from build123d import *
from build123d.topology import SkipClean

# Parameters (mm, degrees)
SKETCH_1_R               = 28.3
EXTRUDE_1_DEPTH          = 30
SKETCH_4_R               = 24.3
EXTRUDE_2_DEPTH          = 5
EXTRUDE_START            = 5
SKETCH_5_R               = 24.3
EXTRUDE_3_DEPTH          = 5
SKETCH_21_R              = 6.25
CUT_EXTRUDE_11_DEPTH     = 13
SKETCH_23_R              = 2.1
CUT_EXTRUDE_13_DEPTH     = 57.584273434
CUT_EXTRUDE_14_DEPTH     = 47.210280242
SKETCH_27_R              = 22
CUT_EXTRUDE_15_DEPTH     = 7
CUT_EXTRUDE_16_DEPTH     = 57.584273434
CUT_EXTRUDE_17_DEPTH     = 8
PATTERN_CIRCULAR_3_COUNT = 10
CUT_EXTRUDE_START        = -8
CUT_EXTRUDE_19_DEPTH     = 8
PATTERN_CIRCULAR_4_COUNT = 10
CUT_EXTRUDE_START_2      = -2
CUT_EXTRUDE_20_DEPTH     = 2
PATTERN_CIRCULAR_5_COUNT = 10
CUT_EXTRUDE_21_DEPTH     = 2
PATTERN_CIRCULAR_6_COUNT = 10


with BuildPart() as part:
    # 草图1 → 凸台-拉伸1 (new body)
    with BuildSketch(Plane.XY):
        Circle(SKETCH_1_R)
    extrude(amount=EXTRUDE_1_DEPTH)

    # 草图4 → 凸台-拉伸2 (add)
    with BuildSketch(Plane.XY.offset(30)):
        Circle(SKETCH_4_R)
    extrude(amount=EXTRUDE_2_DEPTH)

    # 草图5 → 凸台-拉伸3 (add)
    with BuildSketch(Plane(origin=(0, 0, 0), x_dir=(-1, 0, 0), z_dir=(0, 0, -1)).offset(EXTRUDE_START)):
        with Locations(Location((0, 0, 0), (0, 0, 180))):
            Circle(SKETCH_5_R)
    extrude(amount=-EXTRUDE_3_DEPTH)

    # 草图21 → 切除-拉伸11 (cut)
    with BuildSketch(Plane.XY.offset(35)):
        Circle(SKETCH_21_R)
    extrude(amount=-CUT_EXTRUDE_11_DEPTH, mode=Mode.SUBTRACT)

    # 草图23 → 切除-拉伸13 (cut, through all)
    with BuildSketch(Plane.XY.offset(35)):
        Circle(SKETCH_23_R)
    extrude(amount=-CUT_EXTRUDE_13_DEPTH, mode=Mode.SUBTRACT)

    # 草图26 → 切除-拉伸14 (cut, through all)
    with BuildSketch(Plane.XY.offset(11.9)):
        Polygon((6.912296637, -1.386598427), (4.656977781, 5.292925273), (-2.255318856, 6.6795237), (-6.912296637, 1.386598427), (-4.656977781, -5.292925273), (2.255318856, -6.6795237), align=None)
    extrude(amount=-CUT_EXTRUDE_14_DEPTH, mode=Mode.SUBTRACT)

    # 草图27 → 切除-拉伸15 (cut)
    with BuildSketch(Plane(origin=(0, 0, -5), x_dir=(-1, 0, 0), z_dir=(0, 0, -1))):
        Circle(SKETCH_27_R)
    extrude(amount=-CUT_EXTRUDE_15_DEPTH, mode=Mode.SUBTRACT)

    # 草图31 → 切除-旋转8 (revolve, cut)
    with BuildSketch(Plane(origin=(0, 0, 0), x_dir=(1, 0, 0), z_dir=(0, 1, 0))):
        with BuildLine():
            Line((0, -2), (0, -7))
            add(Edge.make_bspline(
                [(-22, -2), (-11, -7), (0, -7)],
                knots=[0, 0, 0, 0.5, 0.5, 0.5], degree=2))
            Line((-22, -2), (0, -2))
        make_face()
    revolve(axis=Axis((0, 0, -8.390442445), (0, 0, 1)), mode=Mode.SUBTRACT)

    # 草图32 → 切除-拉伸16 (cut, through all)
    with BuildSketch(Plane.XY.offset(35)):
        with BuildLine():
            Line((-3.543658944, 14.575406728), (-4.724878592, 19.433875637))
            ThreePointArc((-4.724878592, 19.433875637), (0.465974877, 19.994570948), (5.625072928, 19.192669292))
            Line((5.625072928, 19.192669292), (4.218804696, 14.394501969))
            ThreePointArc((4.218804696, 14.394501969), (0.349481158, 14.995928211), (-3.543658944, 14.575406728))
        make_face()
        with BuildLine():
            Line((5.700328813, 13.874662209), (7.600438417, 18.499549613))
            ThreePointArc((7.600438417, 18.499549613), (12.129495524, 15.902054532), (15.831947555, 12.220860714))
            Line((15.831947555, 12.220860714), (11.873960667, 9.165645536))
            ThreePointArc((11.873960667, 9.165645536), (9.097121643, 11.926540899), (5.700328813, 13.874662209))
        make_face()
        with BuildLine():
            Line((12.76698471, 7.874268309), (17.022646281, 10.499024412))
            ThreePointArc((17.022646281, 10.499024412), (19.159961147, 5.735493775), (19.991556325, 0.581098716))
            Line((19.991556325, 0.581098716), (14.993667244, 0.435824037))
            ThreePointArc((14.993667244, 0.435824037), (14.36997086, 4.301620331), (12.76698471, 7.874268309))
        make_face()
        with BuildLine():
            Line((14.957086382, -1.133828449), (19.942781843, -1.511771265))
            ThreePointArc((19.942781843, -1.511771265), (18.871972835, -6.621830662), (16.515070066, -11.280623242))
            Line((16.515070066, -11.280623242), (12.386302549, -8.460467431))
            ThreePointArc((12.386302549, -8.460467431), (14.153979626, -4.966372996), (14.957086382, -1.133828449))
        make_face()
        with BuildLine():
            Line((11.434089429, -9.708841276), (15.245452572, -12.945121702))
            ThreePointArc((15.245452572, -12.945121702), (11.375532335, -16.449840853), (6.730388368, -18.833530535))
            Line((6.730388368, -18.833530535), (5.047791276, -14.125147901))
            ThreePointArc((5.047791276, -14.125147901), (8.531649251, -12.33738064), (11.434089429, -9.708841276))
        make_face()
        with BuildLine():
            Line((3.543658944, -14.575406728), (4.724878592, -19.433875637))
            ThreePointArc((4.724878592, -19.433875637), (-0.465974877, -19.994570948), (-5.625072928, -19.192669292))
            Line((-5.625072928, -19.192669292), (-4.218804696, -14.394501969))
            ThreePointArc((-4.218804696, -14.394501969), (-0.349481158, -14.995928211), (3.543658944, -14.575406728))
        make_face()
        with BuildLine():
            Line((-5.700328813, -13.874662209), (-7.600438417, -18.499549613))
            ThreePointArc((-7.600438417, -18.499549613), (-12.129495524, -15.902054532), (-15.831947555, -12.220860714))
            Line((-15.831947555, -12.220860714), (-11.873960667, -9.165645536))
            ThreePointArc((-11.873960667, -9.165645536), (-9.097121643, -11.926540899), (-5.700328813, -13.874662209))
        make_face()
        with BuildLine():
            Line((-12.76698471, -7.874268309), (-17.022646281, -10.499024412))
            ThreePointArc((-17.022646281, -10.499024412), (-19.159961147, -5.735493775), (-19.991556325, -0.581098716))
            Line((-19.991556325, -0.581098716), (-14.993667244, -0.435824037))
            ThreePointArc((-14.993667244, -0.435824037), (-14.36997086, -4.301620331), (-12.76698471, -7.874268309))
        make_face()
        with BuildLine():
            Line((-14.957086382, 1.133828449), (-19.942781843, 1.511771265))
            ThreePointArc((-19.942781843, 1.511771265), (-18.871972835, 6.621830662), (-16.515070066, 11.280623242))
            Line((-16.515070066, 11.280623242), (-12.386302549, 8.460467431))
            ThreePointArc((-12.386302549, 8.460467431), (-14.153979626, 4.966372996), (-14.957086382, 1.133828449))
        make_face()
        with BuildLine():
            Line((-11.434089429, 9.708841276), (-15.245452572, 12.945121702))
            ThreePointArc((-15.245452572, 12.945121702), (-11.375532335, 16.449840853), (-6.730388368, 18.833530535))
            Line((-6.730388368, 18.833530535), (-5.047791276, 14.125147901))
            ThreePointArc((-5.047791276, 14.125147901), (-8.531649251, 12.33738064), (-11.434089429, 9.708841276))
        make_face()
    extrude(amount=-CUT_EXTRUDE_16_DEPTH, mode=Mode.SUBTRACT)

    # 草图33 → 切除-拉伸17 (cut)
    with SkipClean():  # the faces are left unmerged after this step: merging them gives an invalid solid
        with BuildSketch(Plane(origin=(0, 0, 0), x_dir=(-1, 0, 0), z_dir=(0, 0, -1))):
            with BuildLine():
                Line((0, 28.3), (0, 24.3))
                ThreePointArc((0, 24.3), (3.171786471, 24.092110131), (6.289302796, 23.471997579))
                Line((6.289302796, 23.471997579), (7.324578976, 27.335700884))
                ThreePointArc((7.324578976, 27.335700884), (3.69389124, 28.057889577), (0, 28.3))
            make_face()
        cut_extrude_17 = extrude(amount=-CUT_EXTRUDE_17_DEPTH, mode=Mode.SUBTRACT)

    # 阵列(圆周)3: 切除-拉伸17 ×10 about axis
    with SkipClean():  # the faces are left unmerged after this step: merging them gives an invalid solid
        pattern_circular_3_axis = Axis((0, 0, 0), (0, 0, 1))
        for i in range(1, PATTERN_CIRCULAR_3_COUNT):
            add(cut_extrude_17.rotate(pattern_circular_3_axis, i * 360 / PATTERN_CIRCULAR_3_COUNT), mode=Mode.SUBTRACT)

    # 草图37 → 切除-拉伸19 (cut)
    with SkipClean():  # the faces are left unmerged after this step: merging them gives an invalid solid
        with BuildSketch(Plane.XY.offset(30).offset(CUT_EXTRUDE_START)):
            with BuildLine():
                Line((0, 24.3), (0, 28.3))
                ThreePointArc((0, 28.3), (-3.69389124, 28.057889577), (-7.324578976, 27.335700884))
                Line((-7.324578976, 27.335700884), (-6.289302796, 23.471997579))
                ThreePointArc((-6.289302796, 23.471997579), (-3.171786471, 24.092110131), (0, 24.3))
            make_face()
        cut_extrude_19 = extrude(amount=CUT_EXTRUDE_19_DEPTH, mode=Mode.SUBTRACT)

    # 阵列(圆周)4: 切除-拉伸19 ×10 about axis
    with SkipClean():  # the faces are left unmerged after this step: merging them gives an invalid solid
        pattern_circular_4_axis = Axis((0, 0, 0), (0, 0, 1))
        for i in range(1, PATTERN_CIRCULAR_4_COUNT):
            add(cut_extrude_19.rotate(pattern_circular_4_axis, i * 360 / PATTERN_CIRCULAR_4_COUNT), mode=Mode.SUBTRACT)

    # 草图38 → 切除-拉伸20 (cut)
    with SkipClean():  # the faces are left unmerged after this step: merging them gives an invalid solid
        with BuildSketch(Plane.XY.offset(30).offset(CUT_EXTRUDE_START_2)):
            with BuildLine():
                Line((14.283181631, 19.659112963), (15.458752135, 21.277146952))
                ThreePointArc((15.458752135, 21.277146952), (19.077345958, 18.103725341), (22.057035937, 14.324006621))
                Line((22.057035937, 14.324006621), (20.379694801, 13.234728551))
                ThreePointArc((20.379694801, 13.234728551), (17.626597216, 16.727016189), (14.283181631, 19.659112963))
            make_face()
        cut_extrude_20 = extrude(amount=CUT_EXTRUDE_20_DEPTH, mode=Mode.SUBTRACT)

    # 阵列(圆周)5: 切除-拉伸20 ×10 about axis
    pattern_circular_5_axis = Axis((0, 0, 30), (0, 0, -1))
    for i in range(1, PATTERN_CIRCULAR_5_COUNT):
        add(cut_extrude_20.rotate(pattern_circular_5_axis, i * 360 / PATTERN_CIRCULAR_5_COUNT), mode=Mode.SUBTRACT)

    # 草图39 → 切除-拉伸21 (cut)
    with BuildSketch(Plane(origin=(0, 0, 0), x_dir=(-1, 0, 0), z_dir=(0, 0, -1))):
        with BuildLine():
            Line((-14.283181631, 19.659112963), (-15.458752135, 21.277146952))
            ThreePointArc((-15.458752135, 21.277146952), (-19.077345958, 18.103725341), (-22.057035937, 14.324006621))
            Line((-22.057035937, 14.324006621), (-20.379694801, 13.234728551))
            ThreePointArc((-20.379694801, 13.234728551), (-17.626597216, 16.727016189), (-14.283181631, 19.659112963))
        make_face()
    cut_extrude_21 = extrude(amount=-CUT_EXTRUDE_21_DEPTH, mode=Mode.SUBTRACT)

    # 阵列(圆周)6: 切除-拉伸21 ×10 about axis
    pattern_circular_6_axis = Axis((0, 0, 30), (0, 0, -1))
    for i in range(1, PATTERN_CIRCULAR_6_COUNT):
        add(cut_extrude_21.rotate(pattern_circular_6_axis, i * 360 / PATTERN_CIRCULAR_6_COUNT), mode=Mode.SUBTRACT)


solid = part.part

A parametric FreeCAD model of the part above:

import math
import FreeCAD as App
import Part
import Sketcher
from FreeCAD import Vector
Q = App.Units.Quantity

doc = App.newDocument("Part")
body = doc.addObject("PartDesign::Body", "Body")

# Sketch on XY plane
sketch1 = doc.addObject("Sketcher::SketchObject", "Sketch")
body.addObject(sketch1)
sketch1.AttachmentSupport = (doc.XY_Plane, [""])
sketch1.MapMode = "FlatFace"
sketch1.addGeometry(Part.Circle(Vector(0, 0, 0), Vector(0, 0, 1), 28.3), False)
sketch1.addConstraint([
    Sketcher.Constraint("Coincident", 0, 3, -1, 1),
    Sketcher.Constraint("Diameter", 0, Q("56.6 mm")),
])
pad1 = doc.addObject("PartDesign::Pad", "Pad")
body.addObject(pad1)
pad1.Profile = sketch1
pad1.Length = 30

# Sketch on XY plane
sketch2 = doc.addObject("Sketcher::SketchObject", "Sketch001")
body.addObject(sketch2)
sketch2.AttachmentSupport = (doc.XY_Plane, [""])
sketch2.MapMode = "FlatFace"
sketch2.AttachmentOffset = App.Placement(Vector(0, 0, 30), App.Rotation())
sketch2.addGeometry(Part.Circle(Vector(0, 0, 0), Vector(0, 0, 1), 24.3), False)
sketch2.addConstraint([
    Sketcher.Constraint("Coincident", 0, 3, -1, 1),
    Sketcher.Constraint("Diameter", 0, Q("48.6 mm")),
])
pad2 = doc.addObject("PartDesign::Pad", "Pad001")
body.addObject(pad2)
pad2.Profile = sketch2
pad2.Length = 5

# Sketch on XY plane
sketch3 = doc.addObject("Sketcher::SketchObject", "Sketch002")
body.addObject(sketch3)
sketch3.AttachmentSupport = (doc.XY_Plane, [""])
sketch3.MapMode = "FlatFace"
sketch3.AttachmentOffset = App.Placement(Vector(0, 0, -5), App.Rotation())
sketch3.addGeometry(Part.Circle(Vector(0, 0, 0), Vector(0, 0, 1), 24.3), False)
sketch3.addConstraint([
    Sketcher.Constraint("Coincident", 0, 3, -1, 1),
    Sketcher.Constraint("Diameter", 0, Q("48.6 mm")),
])
pad3 = doc.addObject("PartDesign::Pad", "Pad002")
body.addObject(pad3)
pad3.Profile = sketch3
pad3.Length = 5

# Sketch on XY plane
sketch4 = doc.addObject("Sketcher::SketchObject", "Sketch003")
body.addObject(sketch4)
sketch4.AttachmentSupport = (doc.XY_Plane, [""])
sketch4.MapMode = "FlatFace"
sketch4.AttachmentOffset = App.Placement(Vector(0, 0, 35), App.Rotation())
sketch4.addGeometry(Part.Circle(Vector(0, 0, 0), Vector(0, 0, 1), 6.25), False)
sketch4.addConstraint([
    Sketcher.Constraint("Coincident", 0, 3, -1, 1),
    Sketcher.Constraint("Diameter", 0, Q("12.5 mm")),
])
pocket1 = doc.addObject("PartDesign::Pocket", "Pocket")
body.addObject(pocket1)
pocket1.Profile = sketch4
pocket1.Length = 13

# Sketch on XY plane
sketch5 = doc.addObject("Sketcher::SketchObject", "Sketch004")
body.addObject(sketch5)
sketch5.AttachmentSupport = (doc.XY_Plane, [""])
sketch5.MapMode = "FlatFace"
sketch5.AttachmentOffset = App.Placement(Vector(0, 0, 35), App.Rotation())
sketch5.addGeometry(Part.Circle(Vector(0, 0, 0), Vector(0, 0, 1), 2.1), False)
sketch5.addConstraint([
    Sketcher.Constraint("Coincident", 0, 3, -1, 1),
    Sketcher.Constraint("Diameter", 0, Q("4.2 mm")),
])
pocket2 = doc.addObject("PartDesign::Pocket", "Pocket001")
body.addObject(pocket2)
pocket2.Profile = sketch5
pocket2.Type = "ThroughAll"

# Sketch on XY plane
sketch6 = doc.addObject("Sketcher::SketchObject", "Sketch005")
body.addObject(sketch6)
sketch6.AttachmentSupport = (doc.XY_Plane, [""])
sketch6.MapMode = "FlatFace"
sketch6.AttachmentOffset = App.Placement(Vector(0, 0, 11.9), App.Rotation())
sketch6.addGeometry([
    Part.LineSegment(Vector(6.912297, -1.386598, 0), Vector(4.656978, 5.292925, 0)),  # 0
    Part.LineSegment(Vector(4.656978, 5.292925, 0), Vector(-2.255319, 6.679524, 0)),  # 1
    Part.LineSegment(Vector(-2.255319, 6.679524, 0), Vector(-6.912297, 1.386598, 0)),  # 2
    Part.LineSegment(Vector(-6.912297, 1.386598, 0), Vector(-4.656978, -5.292925, 0)),  # 3
    Part.LineSegment(Vector(-4.656978, -5.292925, 0), Vector(2.255319, -6.679524, 0)),  # 4
    Part.LineSegment(Vector(2.255319, -6.679524, 0), Vector(6.912297, -1.386598, 0)),  # 5
], False)
sketch6.addConstraint([
    Sketcher.Constraint("Coincident", 0, 2, 1, 1),
    Sketcher.Constraint("Coincident", 1, 2, 2, 1),
    Sketcher.Constraint("Coincident", 2, 2, 3, 1),
    Sketcher.Constraint("Coincident", 3, 2, 4, 1),
    Sketcher.Constraint("Coincident", 4, 2, 5, 1),
    Sketcher.Constraint("Coincident", 5, 2, 0, 1),
    Sketcher.Constraint("Symmetric", 0, 2, 3, 2, -1, 1),
    Sketcher.Constraint("Symmetric", 1, 2, 4, 2, -1, 1),
    Sketcher.Constraint("Symmetric", 2, 2, 5, 2, -1, 1),
    Sketcher.Constraint("Equal", 0, 1),
    Sketcher.Constraint("Equal", 1, 2),
    Sketcher.Constraint("Distance", 0, Q("7.05 mm")),
    Sketcher.Constraint("DistanceY", -1, 1, 2, 2, Q("1.386598 mm")),
    Sketcher.Constraint("DistanceY", 0, 2, 1, 2, Q("1.386598 mm")),
    Sketcher.Constraint("DistanceX", 1, 2, -1, 1, Q("2.255319 mm")),
])
pocket3 = doc.addObject("PartDesign::Pocket", "Pocket002")
body.addObject(pocket3)
pocket3.Profile = sketch6
pocket3.Type = "ThroughAll"

# Sketch on XY plane
sketch7 = doc.addObject("Sketcher::SketchObject", "Sketch006")
body.addObject(sketch7)
sketch7.AttachmentSupport = (doc.XY_Plane, [""])
sketch7.MapMode = "FlatFace"
sketch7.AttachmentOffset = App.Placement(Vector(0, 0, -5), App.Rotation())
sketch7.addGeometry(Part.Circle(Vector(0, 0, 0), Vector(0, 0, 1), 22), False)
sketch7.addConstraint([
    Sketcher.Constraint("Coincident", 0, 3, -1, 1),
    Sketcher.Constraint("Diameter", 0, Q("44 mm")),
])
pocket4 = doc.addObject("PartDesign::Pocket", "Pocket003")
body.addObject(pocket4)
pocket4.Profile = sketch7
pocket4.Length = 7
pocket4.Reversed = True

# Sketch on XZ plane
sketch8 = doc.addObject("Sketcher::SketchObject", "Sketch007")
body.addObject(sketch8)
sketch8.AttachmentSupport = (doc.XZ_Plane, [""])
sketch8.MapMode = "FlatFace"
sketch8.addGeometry([
    Part.LineSegment(Vector(0, 7, 0), Vector(0, 2, 0)),
    Part.LineSegment(Vector(0, 2, 0), Vector(-22, 2, 0)),
    Part.BSplineCurve([Vector(-22, 2, 0), Vector(-11, 7, 0), Vector(0, 7, 0)], [3, 3], [0, 0.5], False, 2, [1, 1, 1], False),
], False)
sketch8.addConstraint([
    Sketcher.Constraint("Block", 2),
    Sketcher.Constraint("Coincident", 0, 2, 1, 1),
    Sketcher.Constraint("Coincident", 1, 2, 2, 1),
    Sketcher.Constraint("Coincident", 2, 2, 0, 1),
    Sketcher.Constraint("Vertical", 0),
    Sketcher.Constraint("Horizontal", 1),
])
groove = doc.addObject("PartDesign::Groove", "Groove")
body.addObject(groove)
groove.Profile = sketch8
groove.ReferenceAxis = (sketch8, ["V_Axis"])
groove.Angle = 360

# Sketch on XY plane
sketch9 = doc.addObject("Sketcher::SketchObject", "Sketch008")
body.addObject(sketch9)
sketch9.AttachmentSupport = (doc.XY_Plane, [""])
sketch9.MapMode = "FlatFace"
sketch9.AttachmentOffset = App.Placement(Vector(0, 0, 35), App.Rotation())
sketch9.addGeometry([
    Part.LineSegment(Vector(-4.724879, 19.433876, 0), Vector(-3.543659, 14.575407, 0)),  # 0
    Part.ArcOfCircle(Part.Circle(Vector(0, 0, 0), Vector(0, 0, 1), 15), math.radians(73.66496), math.radians(103.664959)),  # 1
    Part.LineSegment(Vector(4.218805, 14.394502, 0), Vector(5.625073, 19.192669, 0)),  # 2
    Part.ArcOfCircle(Part.Circle(Vector(0, 0, 0), Vector(0, 0, 1), 20), math.radians(73.66496), math.radians(103.66496)),  # 3
    Part.LineSegment(Vector(7.600438, 18.49955, 0), Vector(5.700329, 13.874662, 0)),  # 4
    Part.ArcOfCircle(Part.Circle(Vector(0, 0, 0), Vector(0, 0, 1), 15), math.radians(37.66496), math.radians(67.66496)),  # 5
    Part.LineSegment(Vector(11.873961, 9.165646, 0), Vector(15.831948, 12.220861, 0)),  # 6
    Part.ArcOfCircle(Part.Circle(Vector(0, 0, 0), Vector(0, 0, 1), 20), math.radians(37.664959), math.radians(67.66496)),  # 7
    Part.LineSegment(Vector(17.022646, 10.499024, 0), Vector(12.766985, 7.874268, 0)),  # 8
    Part.ArcOfCircle(Part.Circle(Vector(0, 0, 0), Vector(0, 0, 1), 15), math.radians(1.66496), math.radians(31.66496)),  # 9
    Part.LineSegment(Vector(14.993667, 0.435824, 0), Vector(19.991556, 0.581099, 0)),  # 10
    Part.ArcOfCircle(Part.Circle(Vector(0, 0, 0), Vector(0, 0, 1), 20), math.radians(1.66496), math.radians(31.664959)),  # 11
    Part.LineSegment(Vector(19.942782, -1.511771, 0), Vector(14.957086, -1.133828, 0)),  # 12
    Part.ArcOfCircle(Part.Circle(Vector(0, 0, 0), Vector(0, 0, 1), 15), math.radians(-34.33504), math.radians(-4.33504)),  # 13
    Part.LineSegment(Vector(12.386303, -8.460467, 0), Vector(16.51507, -11.280623, 0)),  # 14
    Part.ArcOfCircle(Part.Circle(Vector(0, 0, 0), Vector(0, 0, 1), 20), math.radians(-34.33504), math.radians(-4.33504)),  # 15
    Part.LineSegment(Vector(15.245453, -12.945122, 0), Vector(11.434089, -9.708841, 0)),  # 16
    Part.ArcOfCircle(Part.Circle(Vector(0, 0, 0), Vector(0, 0, 1), 15), math.radians(-70.335041), math.radians(-40.33504)),  # 17
    Part.LineSegment(Vector(5.047791, -14.125148, 0), Vector(6.730388, -18.833531, 0)),  # 18
    Part.ArcOfCircle(Part.Circle(Vector(0, 0, 0), Vector(0, 0, 1), 20), math.radians(-70.33504), math.radians(-40.33504)),  # 19
    Part.LineSegment(Vector(4.724879, -19.433876, 0), Vector(3.543659, -14.575407, 0)),  # 20
    Part.ArcOfCircle(Part.Circle(Vector(0, 0, 0), Vector(0, 0, 1), 15), math.radians(-106.33504), math.radians(-76.335041)),  # 21
    Part.LineSegment(Vector(-4.218805, -14.394502, 0), Vector(-5.625073, -19.192669, 0)),  # 22
    Part.ArcOfCircle(Part.Circle(Vector(0, 0, 0), Vector(0, 0, 1), 20), math.radians(-106.33504), math.radians(-76.33504)),  # 23
    Part.LineSegment(Vector(-7.600438, -18.49955, 0), Vector(-5.700329, -13.874662, 0)),  # 24
    Part.ArcOfCircle(Part.Circle(Vector(0, 0, 0), Vector(0, 0, 1), 15), math.radians(-142.33504), math.radians(-112.33504)),  # 25
    Part.LineSegment(Vector(-11.873961, -9.165646, 0), Vector(-15.831948, -12.220861, 0)),  # 26
    Part.ArcOfCircle(Part.Circle(Vector(0, 0, 0), Vector(0, 0, 1), 20), math.radians(-142.335041), math.radians(-112.33504)),  # 27
    Part.LineSegment(Vector(-17.022646, -10.499024, 0), Vector(-12.766985, -7.874268, 0)),  # 28
    Part.ArcOfCircle(Part.Circle(Vector(0, 0, 0), Vector(0, 0, 1), 15), math.radians(-178.33504), math.radians(-148.33504)),  # 29
    Part.LineSegment(Vector(-14.993667, -0.435824, 0), Vector(-19.991556, -0.581099, 0)),  # 30
    Part.ArcOfCircle(Part.Circle(Vector(0, 0, 0), Vector(0, 0, 1), 20), math.radians(-178.33504), math.radians(-148.335041)),  # 31
    Part.LineSegment(Vector(-19.942782, 1.511771, 0), Vector(-14.957086, 1.133828, 0)),  # 32
    Part.ArcOfCircle(Part.Circle(Vector(0, 0, 0), Vector(0, 0, 1), 15), math.radians(145.66496), math.radians(175.66496)),  # 33
    Part.LineSegment(Vector(-12.386303, 8.460467, 0), Vector(-16.51507, 11.280623, 0)),  # 34
    Part.ArcOfCircle(Part.Circle(Vector(0, 0, 0), Vector(0, 0, 1), 20), math.radians(145.66496), math.radians(175.66496)),  # 35
    Part.LineSegment(Vector(-15.245453, 12.945122, 0), Vector(-11.434089, 9.708841, 0)),  # 36
    Part.ArcOfCircle(Part.Circle(Vector(0, 0, 0), Vector(0, 0, 1), 15), math.radians(109.664959), math.radians(139.66496)),  # 37
    Part.LineSegment(Vector(-5.047791, 14.125148, 0), Vector(-6.730388, 18.833531, 0)),  # 38
    Part.ArcOfCircle(Part.Circle(Vector(0, 0, 0), Vector(0, 0, 1), 20), math.radians(109.66496), math.radians(139.66496)),  # 39
], False)
sketch9.addConstraint([
    Sketcher.Constraint("Coincident", 0, 2, 1, 2),
    Sketcher.Constraint("Coincident", 1, 1, 2, 1),
    Sketcher.Constraint("Coincident", 2, 2, 3, 1),
    Sketcher.Constraint("Coincident", 3, 2, 0, 1),
    Sketcher.Constraint("Coincident", 4, 2, 5, 2),
    Sketcher.Constraint("Coincident", 5, 1, 6, 1),
    Sketcher.Constraint("Coincident", 6, 2, 7, 1),
    Sketcher.Constraint("Coincident", 7, 2, 4, 1),
    Sketcher.Constraint("Coincident", 8, 2, 9, 2),
    Sketcher.Constraint("Coincident", 9, 1, 10, 1),
    Sketcher.Constraint("Coincident", 10, 2, 11, 1),
    Sketcher.Constraint("Coincident", 11, 2, 8, 1),
    Sketcher.Constraint("Coincident", 12, 2, 13, 2),
    Sketcher.Constraint("Coincident", 13, 1, 14, 1),
    Sketcher.Constraint("Coincident", 14, 2, 15, 1),
    Sketcher.Constraint("Coincident", 15, 2, 12, 1),
    Sketcher.Constraint("Coincident", 16, 2, 17, 2),
    Sketcher.Constraint("Coincident", 17, 1, 18, 1),
    Sketcher.Constraint("Coincident", 18, 2, 19, 1),
    Sketcher.Constraint("Coincident", 19, 2, 16, 1),
    Sketcher.Constraint("Coincident", 20, 2, 21, 2),
    Sketcher.Constraint("Coincident", 21, 1, 22, 1),
    Sketcher.Constraint("Coincident", 22, 2, 23, 1),
    Sketcher.Constraint("Coincident", 23, 2, 20, 1),
    Sketcher.Constraint("Coincident", 24, 2, 25, 2),
    Sketcher.Constraint("Coincident", 25, 1, 26, 1),
    Sketcher.Constraint("Coincident", 26, 2, 27, 1),
    Sketcher.Constraint("Coincident", 27, 2, 24, 1),
    Sketcher.Constraint("Coincident", 28, 2, 29, 2),
    Sketcher.Constraint("Coincident", 29, 1, 30, 1),
    Sketcher.Constraint("Coincident", 30, 2, 31, 1),
    Sketcher.Constraint("Coincident", 31, 2, 28, 1),
    Sketcher.Constraint("Coincident", 32, 2, 33, 2),
    Sketcher.Constraint("Coincident", 33, 1, 34, 1),
    Sketcher.Constraint("Coincident", 34, 2, 35, 1),
    Sketcher.Constraint("Coincident", 35, 2, 32, 1),
    Sketcher.Constraint("Coincident", 36, 2, 37, 2),
    Sketcher.Constraint("Coincident", 37, 1, 38, 1),
    Sketcher.Constraint("Coincident", 38, 2, 39, 1),
    Sketcher.Constraint("Coincident", 39, 2, 36, 1),
    Sketcher.Constraint("Coincident", 1, 3, -1, 1),
    Sketcher.Constraint("Coincident", 3, 3, -1, 1),
    Sketcher.Constraint("Coincident", 5, 3, -1, 1),
    Sketcher.Constraint("Coincident", 7, 3, -1, 1),
    Sketcher.Constraint("Coincident", 9, 3, -1, 1),
    Sketcher.Constraint("Coincident", 11, 3, -1, 1),
    Sketcher.Constraint("Coincident", 13, 3, -1, 1),
    Sketcher.Constraint("Coincident", 15, 3, -1, 1),
    Sketcher.Constraint("Coincident", 17, 3, -1, 1),
    Sketcher.Constraint("Coincident", 19, 3, -1, 1),
    Sketcher.Constraint("Coincident", 21, 3, -1, 1),
    Sketcher.Constraint("Coincident", 23, 3, -1, 1),
    Sketcher.Constraint("Coincident", 25, 3, -1, 1),
    Sketcher.Constraint("Coincident", 27, 3, -1, 1),
    Sketcher.Constraint("Coincident", 29, 3, -1, 1),
    Sketcher.Constraint("Coincident", 31, 3, -1, 1),
    Sketcher.Constraint("Coincident", 33, 3, -1, 1),
    Sketcher.Constraint("Coincident", 35, 3, -1, 1),
    Sketcher.Constraint("Coincident", 37, 3, -1, 1),
    Sketcher.Constraint("Coincident", 39, 3, -1, 1),
    Sketcher.Constraint("Equal", 1, 5),
    Sketcher.Constraint("Equal", 3, 7),
    Sketcher.Constraint("Equal", 5, 9),
    Sketcher.Constraint("Equal", 7, 11),
    Sketcher.Constraint("Equal", 9, 13),
    Sketcher.Constraint("Equal", 11, 15),
    Sketcher.Constraint("Equal", 13, 17),
    Sketcher.Constraint("Equal", 15, 19),
    Sketcher.Constraint("Equal", 17, 21),
    Sketcher.Constraint("Equal", 19, 23),
    Sketcher.Constraint("Equal", 21, 25),
    Sketcher.Constraint("Equal", 23, 27),
    Sketcher.Constraint("Equal", 25, 29),
    Sketcher.Constraint("Equal", 27, 31),
    Sketcher.Constraint("Equal", 29, 33),
    Sketcher.Constraint("Equal", 31, 35),
    Sketcher.Constraint("Equal", 33, 37),
    Sketcher.Constraint("Equal", 35, 39),
    Sketcher.Constraint("Parallel", 0, 20),
    Sketcher.Constraint("Parallel", 2, 22),
    Sketcher.Constraint("Parallel", 4, 24),
    Sketcher.Constraint("Parallel", 6, 26),
    Sketcher.Constraint("Parallel", 8, 28),
    Sketcher.Constraint("Parallel", 10, 30),
    Sketcher.Constraint("Parallel", 12, 32),
    Sketcher.Constraint("Parallel", 14, 34),
    Sketcher.Constraint("Parallel", 16, 36),
    Sketcher.Constraint("Parallel", 18, 38),
    Sketcher.Constraint("Radius", 1, Q("15 mm")),
    Sketcher.Constraint("Radius", 3, Q("20 mm")),
    Sketcher.Constraint("DistanceY", -1, 1, 1, 1, Q("14.394502 mm")),
    Sketcher.Constraint("DistanceY", -1, 1, 10, 2, Q("0.581099 mm")),
    Sketcher.Constraint("DistanceY", 21, 1, -1, 1, Q("14.394502 mm")),
    Sketcher.Constraint("DistanceY", 30, 2, -1, 1, Q("0.581099 mm")),
    Sketcher.Constraint("DistanceY", 6, 2, 4, 2, Q("1.653801 mm")),
    Sketcher.Constraint("DistanceX", 6, 2, 11, 2, Q("1.190699 mm")),
    Sketcher.Constraint("DistanceY", 9, 1, 11, 2, Q("10.0632 mm")),
    Sketcher.Constraint("DistanceX", 8, 2, 12, 2, Q("2.190102 mm")),
    Sketcher.Constraint("DistanceX", 17, 1, 16, 2, Q("6.386298 mm")),
    Sketcher.Constraint("DistanceX", 18, 2, 16, 2, Q("4.703701 mm")),
    Sketcher.Constraint("DistanceX", 18, 2, 12, 2, Q("8.226698 mm")),
    Sketcher.Constraint("DistanceY", 19, 2, 14, 2, Q("1.664498 mm")),
    Sketcher.Constraint("DistanceY", 24, 2, 26, 2, Q("1.653801 mm")),
    Sketcher.Constraint("DistanceX", 31, 2, 26, 2, Q("1.190699 mm")),
    Sketcher.Constraint("DistanceY", 31, 2, 29, 1, Q("10.0632 mm")),
    Sketcher.Constraint("DistanceX", 32, 2, 28, 2, Q("2.190102 mm")),
    Sketcher.Constraint("DistanceX", 36, 2, 37, 1, Q("6.386298 mm")),
    Sketcher.Constraint("DistanceY", 34, 2, 39, 2, Q("1.664498 mm")),
    Sketcher.Constraint("DistanceX", 0, 2, -1, 1, Q("3.543659 mm")),
    Sketcher.Constraint("DistanceY", -1, 1, 2, 2, Q("19.192669 mm")),
    Sketcher.Constraint("DistanceX", 3, 2, -1, 1, Q("4.724879 mm")),
    Sketcher.Constraint("DistanceX", -1, 1, 4, 2, Q("5.700329 mm")),
    Sketcher.Constraint("DistanceX", -1, 1, 5, 1, Q("11.873961 mm")),
    Sketcher.Constraint("DistanceX", -1, 1, 7, 2, Q("7.600438 mm")),
    Sketcher.Constraint("DistanceY", -1, 1, 8, 2, Q("7.874268 mm")),
    Sketcher.Constraint("DistanceX", -1, 1, 14, 2, Q("16.51507 mm")),
    Sketcher.Constraint("DistanceX", -1, 1, 15, 2, Q("19.942782 mm")),
    Sketcher.Constraint("DistanceX", -1, 1, 20, 2, Q("3.543659 mm")),
    Sketcher.Constraint("DistanceX", 34, 2, -1, 1, Q("16.51507 mm")),
    Sketcher.Constraint("DistanceY", 13, 1, 12, 2, Q("7.326639 mm")),
])
pocket5 = doc.addObject("PartDesign::Pocket", "Pocket004")
body.addObject(pocket5)
pocket5.Profile = sketch9
pocket5.Type = "ThroughAll"

# Sketch on XY plane
sketch10 = doc.addObject("Sketcher::SketchObject", "Sketch009")
body.addObject(sketch10)
sketch10.AttachmentSupport = (doc.XY_Plane, [""])
sketch10.MapMode = "FlatFace"
sketch10.addGeometry([
    Part.LineSegment(Vector(0, 28.3, 0), Vector(0, 24.3, 0)),
    Part.ArcOfCircle(Part.Circle(Vector(0, 0, 0), Vector(0, 0, 1), 24.3), math.radians(90), math.radians(105)),
    Part.LineSegment(Vector(-6.289303, 23.471998, 0), Vector(-7.324579, 27.335701, 0)),
    Part.ArcOfCircle(Part.Circle(Vector(0, 0, 0), Vector(0, 0, 1), 28.3), math.radians(90), math.radians(105)),
], False)
sketch10.addConstraint([
    Sketcher.Constraint("Coincident", 0, 2, 1, 1),
    Sketcher.Constraint("Coincident", 1, 2, 2, 1),
    Sketcher.Constraint("Coincident", 2, 2, 3, 2),
    Sketcher.Constraint("Coincident", 3, 1, 0, 1),
    Sketcher.Constraint("Vertical", 0),
    Sketcher.Constraint("Coincident", 1, 3, -1, 1),
    Sketcher.Constraint("Coincident", 3, 3, -1, 1),
    Sketcher.Constraint("PointOnObject", 0, 2, -2),
    Sketcher.Constraint("Radius", 1, Q("24.3 mm")),
    Sketcher.Constraint("Radius", 3, Q("28.3 mm")),
    Sketcher.Constraint("Angle", 2, Q("105 deg")),
    Sketcher.Constraint("DistanceY", -1, 1, 2, 2, Q("27.335701 mm")),
])
pocket6 = doc.addObject("PartDesign::Pocket", "Pocket005")
body.addObject(pocket6)
pocket6.Profile = sketch10
pocket6.Length = 8
pocket6.Reversed = True
doc.recompute()

polarpattern = doc.addObject("PartDesign::PolarPattern", "PolarPattern")
body.addObject(polarpattern)
polarpattern.Originals = [pocket6]
polarpattern.Axis = (doc.Z_Axis, [""])
polarpattern.Angle = 360
polarpattern.Occurrences = 10
body.Tip = polarpattern

# Sketch on XY plane
sketch11 = doc.addObject("Sketcher::SketchObject", "Sketch010")
body.addObject(sketch11)
sketch11.AttachmentSupport = (doc.XY_Plane, [""])
sketch11.MapMode = "FlatFace"
sketch11.AttachmentOffset = App.Placement(Vector(0, 0, 22), App.Rotation())
sketch11.addGeometry([
    Part.LineSegment(Vector(0, 24.3, 0), Vector(0, 28.3, 0)),
    Part.ArcOfCircle(Part.Circle(Vector(0, 0, 0), Vector(0, 0, 1), 28.3), math.radians(90), math.radians(105)),
    Part.LineSegment(Vector(-7.324579, 27.335701, 0), Vector(-6.289303, 23.471998, 0)),
    Part.ArcOfCircle(Part.Circle(Vector(0, 0, 0), Vector(0, 0, 1), 24.3), math.radians(90), math.radians(105)),
], False)
sketch11.addConstraint([
    Sketcher.Constraint("Coincident", 0, 2, 1, 1),
    Sketcher.Constraint("Coincident", 1, 2, 2, 1),
    Sketcher.Constraint("Coincident", 2, 2, 3, 2),
    Sketcher.Constraint("Coincident", 3, 1, 0, 1),
    Sketcher.Constraint("Vertical", 0),
    Sketcher.Constraint("Coincident", 1, 3, -1, 1),
    Sketcher.Constraint("Coincident", 3, 3, -1, 1),
    Sketcher.Constraint("PointOnObject", 0, 2, -2),
    Sketcher.Constraint("Radius", 1, Q("28.3 mm")),
    Sketcher.Constraint("Radius", 3, Q("24.3 mm")),
    Sketcher.Constraint("Angle", 2, Q("-75 deg")),
    Sketcher.Constraint("DistanceY", -1, 1, 1, 2, Q("27.335701 mm")),
])
pocket7 = doc.addObject("PartDesign::Pocket", "Pocket006")
body.addObject(pocket7)
pocket7.Profile = sketch11
pocket7.Length = 8
pocket7.Reversed = True
doc.recompute()

polarpattern2 = doc.addObject("PartDesign::PolarPattern", "PolarPattern001")
body.addObject(polarpattern2)
polarpattern2.Originals = [pocket7]
polarpattern2.Axis = (doc.Z_Axis, [""])
polarpattern2.Angle = 360
polarpattern2.Occurrences = 10
body.Tip = polarpattern2

# Sketch on XY plane
sketch12 = doc.addObject("Sketcher::SketchObject", "Sketch011")
body.addObject(sketch12)
sketch12.AttachmentSupport = (doc.XY_Plane, [""])
sketch12.MapMode = "FlatFace"
sketch12.AttachmentOffset = App.Placement(Vector(0, 0, 28), App.Rotation())
sketch12.addGeometry([
    Part.LineSegment(Vector(15.458752, 21.277147, 0), Vector(14.283182, 19.659113, 0)),
    Part.ArcOfCircle(Part.Circle(Vector(0, 0, 0), Vector(0, 0, 1), 24.3), math.radians(33), math.radians(54)),
    Part.LineSegment(Vector(20.379695, 13.234729, 0), Vector(22.057036, 14.324007, 0)),
    Part.ArcOfCircle(Part.Circle(Vector(0, 0, 0), Vector(0, 0, 1), 26.3), math.radians(33), math.radians(54)),
], False)
sketch12.addConstraint([
    Sketcher.Constraint("Coincident", 0, 2, 1, 2),
    Sketcher.Constraint("Coincident", 1, 1, 2, 1),
    Sketcher.Constraint("Coincident", 2, 2, 3, 1),
    Sketcher.Constraint("Coincident", 3, 2, 0, 1),
    Sketcher.Constraint("Coincident", 1, 3, -1, 1),
    Sketcher.Constraint("Coincident", 3, 3, -1, 1),
    Sketcher.Constraint("Radius", 1, Q("24.3 mm")),
    Sketcher.Constraint("Radius", 3, Q("26.3 mm")),
    Sketcher.Constraint("Angle", 0, Q("-126 deg")),
    Sketcher.Constraint("Angle", 2, Q("33 deg")),
    Sketcher.Constraint("DistanceX", -1, 1, 0, 2, Q("14.283182 mm")),
    Sketcher.Constraint("DistanceY", -1, 1, 1, 1, Q("13.234729 mm")),
])
pocket8 = doc.addObject("PartDesign::Pocket", "Pocket007")
body.addObject(pocket8)
pocket8.Profile = sketch12
pocket8.Length = 2
pocket8.Reversed = True
doc.recompute()

polarpattern3 = doc.addObject("PartDesign::PolarPattern", "PolarPattern002")
body.addObject(polarpattern3)
polarpattern3.Originals = [pocket8]
polarpattern3.Axis = (doc.Z_Axis, [""])
polarpattern3.Angle = 360
polarpattern3.Occurrences = 10
body.Tip = polarpattern3

# Sketch on XY plane
sketch13 = doc.addObject("Sketcher::SketchObject", "Sketch012")
body.addObject(sketch13)
sketch13.AttachmentSupport = (doc.XY_Plane, [""])
sketch13.MapMode = "FlatFace"
sketch13.addGeometry([
    Part.LineSegment(Vector(14.283182, 19.659113, 0), Vector(15.458752, 21.277147, 0)),
    Part.ArcOfCircle(Part.Circle(Vector(0, 0, 0), Vector(0, 0, 1), 26.3), math.radians(33), math.radians(54)),
    Part.LineSegment(Vector(22.057036, 14.324007, 0), Vector(20.379695, 13.234729, 0)),
    Part.ArcOfCircle(Part.Circle(Vector(0, 0, 0), Vector(0, 0, 1), 24.3), math.radians(33), math.radians(54)),
], False)
sketch13.addConstraint([
    Sketcher.Constraint("Coincident", 0, 2, 1, 2),
    Sketcher.Constraint("Coincident", 1, 1, 2, 1),
    Sketcher.Constraint("Coincident", 2, 2, 3, 1),
    Sketcher.Constraint("Coincident", 3, 2, 0, 1),
    Sketcher.Constraint("Coincident", 1, 3, -1, 1),
    Sketcher.Constraint("Coincident", 3, 3, -1, 1),
    Sketcher.Constraint("Radius", 1, Q("26.3 mm")),
    Sketcher.Constraint("Radius", 3, Q("24.3 mm")),
    Sketcher.Constraint("Angle", 0, Q("54 deg")),
    Sketcher.Constraint("Angle", 2, Q("-147 deg")),
    Sketcher.Constraint("DistanceY", -1, 1, 2, 2, Q("13.234729 mm")),
    Sketcher.Constraint("DistanceX", -1, 1, 3, 2, Q("14.283182 mm")),
])
pocket9 = doc.addObject("PartDesign::Pocket", "Pocket008")
body.addObject(pocket9)
pocket9.Profile = sketch13
pocket9.Length = 2
pocket9.Reversed = True
doc.recompute()

polarpattern4 = doc.addObject("PartDesign::PolarPattern", "PolarPattern003")
body.addObject(polarpattern4)
polarpattern4.Originals = [pocket9]
polarpattern4.Axis = (doc.Z_Axis, [""])
polarpattern4.Angle = 360
polarpattern4.Occurrences = 10
body.Tip = polarpattern4

doc.recompute()
